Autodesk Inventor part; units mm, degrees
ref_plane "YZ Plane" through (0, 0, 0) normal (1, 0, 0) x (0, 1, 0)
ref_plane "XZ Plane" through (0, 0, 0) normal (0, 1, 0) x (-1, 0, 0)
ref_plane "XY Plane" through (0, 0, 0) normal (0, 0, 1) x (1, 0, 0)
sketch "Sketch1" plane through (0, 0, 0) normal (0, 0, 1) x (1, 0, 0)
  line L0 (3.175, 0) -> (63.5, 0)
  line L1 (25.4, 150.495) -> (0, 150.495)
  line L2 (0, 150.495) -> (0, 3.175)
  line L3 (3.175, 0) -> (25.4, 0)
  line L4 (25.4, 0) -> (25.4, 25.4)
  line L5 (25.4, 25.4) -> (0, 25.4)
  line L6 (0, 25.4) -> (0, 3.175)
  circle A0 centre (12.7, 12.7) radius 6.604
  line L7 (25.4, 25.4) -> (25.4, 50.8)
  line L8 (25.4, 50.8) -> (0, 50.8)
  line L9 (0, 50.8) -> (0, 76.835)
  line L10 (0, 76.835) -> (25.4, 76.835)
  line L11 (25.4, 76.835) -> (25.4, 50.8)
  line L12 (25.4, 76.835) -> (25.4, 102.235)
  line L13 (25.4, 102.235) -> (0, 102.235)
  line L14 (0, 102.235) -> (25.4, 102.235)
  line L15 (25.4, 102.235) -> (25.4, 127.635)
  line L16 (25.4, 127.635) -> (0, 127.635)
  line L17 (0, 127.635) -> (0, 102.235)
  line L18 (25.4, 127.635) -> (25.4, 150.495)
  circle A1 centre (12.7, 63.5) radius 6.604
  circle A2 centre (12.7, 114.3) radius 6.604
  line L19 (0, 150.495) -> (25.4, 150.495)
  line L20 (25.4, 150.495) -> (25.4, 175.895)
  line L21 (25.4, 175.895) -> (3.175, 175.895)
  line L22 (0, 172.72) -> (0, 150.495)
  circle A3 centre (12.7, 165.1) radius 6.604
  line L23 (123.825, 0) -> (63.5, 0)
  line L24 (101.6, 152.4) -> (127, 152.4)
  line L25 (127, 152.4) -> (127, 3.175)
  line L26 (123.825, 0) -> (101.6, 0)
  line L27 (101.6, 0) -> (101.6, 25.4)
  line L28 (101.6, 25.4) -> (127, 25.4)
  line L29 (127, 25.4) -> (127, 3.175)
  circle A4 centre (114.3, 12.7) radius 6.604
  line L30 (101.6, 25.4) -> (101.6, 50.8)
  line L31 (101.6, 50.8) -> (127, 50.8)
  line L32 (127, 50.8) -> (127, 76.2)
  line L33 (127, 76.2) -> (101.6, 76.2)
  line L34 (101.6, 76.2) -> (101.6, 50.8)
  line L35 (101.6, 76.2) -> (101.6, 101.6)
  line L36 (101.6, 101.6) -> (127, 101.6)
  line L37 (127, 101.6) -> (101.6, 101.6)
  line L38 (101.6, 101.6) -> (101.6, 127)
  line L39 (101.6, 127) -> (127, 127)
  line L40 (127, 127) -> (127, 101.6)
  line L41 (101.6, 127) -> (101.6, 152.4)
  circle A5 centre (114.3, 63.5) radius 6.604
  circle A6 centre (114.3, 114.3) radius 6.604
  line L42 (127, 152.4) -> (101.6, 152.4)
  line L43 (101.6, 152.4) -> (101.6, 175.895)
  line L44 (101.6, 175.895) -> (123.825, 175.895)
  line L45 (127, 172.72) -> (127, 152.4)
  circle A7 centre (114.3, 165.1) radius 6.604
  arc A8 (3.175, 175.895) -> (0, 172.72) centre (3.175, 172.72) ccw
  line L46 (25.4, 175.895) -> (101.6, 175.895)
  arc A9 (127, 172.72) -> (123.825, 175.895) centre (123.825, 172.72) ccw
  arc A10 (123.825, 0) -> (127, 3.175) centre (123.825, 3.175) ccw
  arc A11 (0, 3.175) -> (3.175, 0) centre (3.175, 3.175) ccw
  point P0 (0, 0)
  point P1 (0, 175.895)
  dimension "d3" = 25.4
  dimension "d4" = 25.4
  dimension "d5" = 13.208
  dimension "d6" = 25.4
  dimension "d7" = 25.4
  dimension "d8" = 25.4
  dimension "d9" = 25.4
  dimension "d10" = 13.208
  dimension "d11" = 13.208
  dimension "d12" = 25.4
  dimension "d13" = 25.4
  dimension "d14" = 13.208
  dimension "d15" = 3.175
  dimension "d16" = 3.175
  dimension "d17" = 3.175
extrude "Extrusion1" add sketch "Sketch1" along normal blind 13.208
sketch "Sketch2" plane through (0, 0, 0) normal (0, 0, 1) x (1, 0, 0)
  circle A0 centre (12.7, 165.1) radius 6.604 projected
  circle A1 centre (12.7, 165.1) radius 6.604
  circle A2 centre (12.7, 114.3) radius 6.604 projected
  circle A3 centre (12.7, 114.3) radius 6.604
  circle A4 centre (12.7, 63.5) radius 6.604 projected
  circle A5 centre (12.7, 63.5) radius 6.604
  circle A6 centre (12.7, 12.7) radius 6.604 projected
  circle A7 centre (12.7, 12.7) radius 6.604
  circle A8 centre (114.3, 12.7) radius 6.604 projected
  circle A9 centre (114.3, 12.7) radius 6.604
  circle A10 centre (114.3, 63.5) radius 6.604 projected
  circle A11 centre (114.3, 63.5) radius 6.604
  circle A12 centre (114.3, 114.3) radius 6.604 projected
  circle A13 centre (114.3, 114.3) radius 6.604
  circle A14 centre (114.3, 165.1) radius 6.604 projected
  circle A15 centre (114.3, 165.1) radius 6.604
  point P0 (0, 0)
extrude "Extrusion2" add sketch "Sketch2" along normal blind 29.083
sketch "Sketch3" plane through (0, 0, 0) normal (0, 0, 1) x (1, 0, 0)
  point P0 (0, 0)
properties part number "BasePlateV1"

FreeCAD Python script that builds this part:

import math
import FreeCAD as App
import Part
import Sketcher

V = App.Vector
Q = App.Units.Quantity

doc = App.newDocument("Part")
body = doc.addObject("PartDesign::Body", "Body")

sketch1 = body.newObject("Sketcher::SketchObject", "Sketch")
sketch1.AttachmentSupport = (doc.getObject("XY_Plane"), [""])
sketch1.MapMode = "FlatFace"
sketch1.addGeometry([
    Part.ArcOfCircle(Part.Circle(V(3.2, 3.2, 0), V(0, 0, 1), 3.2), math.radians(180), math.radians(270)),
    Part.LineSegment(V(3.2, 0, 0), V(123.8, 0, 0)),
    Part.ArcOfCircle(Part.Circle(V(123.8, 3.2, 0), V(0, 0, 1), 3.2), math.radians(-90), math.radians(0)),
    Part.LineSegment(V(127, 3.2, 0), V(127, 172.7, 0)),
    Part.ArcOfCircle(Part.Circle(V(123.8, 172.7, 0), V(0, 0, 1), 3.2), math.radians(0), math.radians(90)),
    Part.LineSegment(V(123.8, 175.9, 0), V(3.2, 175.9, 0)),
    Part.ArcOfCircle(Part.Circle(V(3.2, 172.7, 0), V(0, 0, 1), 3.2), math.radians(90), math.radians(180)),
    Part.LineSegment(V(0, 172.7, 0), V(0, 3.2, 0)),
    Part.Circle(V(12.7, 12.7, 0), V(0, 0, 1), 6.6),
    Part.Circle(V(12.7, 63.5, 0), V(0, 0, 1), 6.6),
    Part.Circle(V(12.7, 114.3, 0), V(0, 0, 1), 6.6),
    Part.Circle(V(12.7, 165.1, 0), V(0, 0, 1), 6.6),
    Part.Circle(V(114.3, 165.1, 0), V(0, 0, 1), 6.6),
    Part.Circle(V(114.3, 114.3, 0), V(0, 0, 1), 6.6),
    Part.Circle(V(114.3, 63.5, 0), V(0, 0, 1), 6.6),
    Part.Circle(V(114.3, 12.7, 0), V(0, 0, 1), 6.6),
], False)
sketch1.addConstraint([
    Sketcher.Constraint("Tangent", 0, 2, 1, 1),
    Sketcher.Constraint("Tangent", 1, 2, 2, 1),
    Sketcher.Constraint("Tangent", 2, 2, 3, 1),
    Sketcher.Constraint("Tangent", 3, 2, 4, 1),
    Sketcher.Constraint("Tangent", 4, 2, 5, 1),
    Sketcher.Constraint("Tangent", 5, 2, 6, 1),
    Sketcher.Constraint("Tangent", 6, 2, 7, 1),
    Sketcher.Constraint("Tangent", 7, 2, 0, 1),
    Sketcher.Constraint("Horizontal", 1),
    Sketcher.Constraint("Vertical", 3),
    Sketcher.Constraint("Horizontal", 5),
    Sketcher.Constraint("Vertical", 7),
    Sketcher.Constraint("Equal", 0, 2),
    Sketcher.Constraint("Equal", 2, 4),
    Sketcher.Constraint("Equal", 4, 6),
    Sketcher.Constraint("Equal", 8, 9),
    Sketcher.Constraint("Equal", 9, 10),
    Sketcher.Constraint("Equal", 10, 11),
    Sketcher.Constraint("Equal", 11, 12),
    Sketcher.Constraint("Equal", 12, 13),
    Sketcher.Constraint("Equal", 13, 14),
    Sketcher.Constraint("Equal", 14, 15),
    Sketcher.Constraint("PointOnObject", 0, 2, -1),
    Sketcher.Constraint("PointOnObject", 6, 2, -2),
    Sketcher.Constraint("Horizontal", 11, 3, 12, 3),
    Sketcher.Constraint("Horizontal", 10, 3, 13, 3),
    Sketcher.Constraint("Horizontal", 9, 3, 14, 3),
    Sketcher.Constraint("Horizontal", 8, 3, 15, 3),
    Sketcher.Constraint("Vertical", 8, 3, 9, 3),
    Sketcher.Constraint("Vertical", 9, 3, 10, 3),
    Sketcher.Constraint("Vertical", 10, 3, 11, 3),
    Sketcher.Constraint("Vertical", 12, 3, 13, 3),
    Sketcher.Constraint("Vertical", 13, 3, 14, 3),
    Sketcher.Constraint("Vertical", 14, 3, 15, 3),
    Sketcher.Constraint("Diameter", 8, Q("0.52 in")),
    Sketcher.Constraint("Radius", 0, Q("0.125 in")),
    Sketcher.Constraint("DistanceX", -1, 1, 2, 2, Q("5 in")),
    Sketcher.Constraint("DistanceY", 8, 3, 9, 3, Q("2 in")),
    Sketcher.Constraint("DistanceY", 9, 3, 10, 3, Q("2 in")),
    Sketcher.Constraint("DistanceY", 10, 3, 11, 3, Q("2 in")),
    Sketcher.Constraint("DistanceX", 11, 3, 12, 3, Q("4 in")),
    Sketcher.Constraint("DistanceY", -1, 1, 4, 3, Q("6.8 in")),
    Sketcher.Constraint("DistanceX", -1, 1, 8, 3, Q("0.5 in")),
    Sketcher.Constraint("DistanceY", -1, 1, 8, 3, Q("0.5 in")),
])
pad1 = body.newObject("PartDesign::Pad", "Pad")
pad1.Profile = sketch1
pad1.Length = Q("0.52 in")

sketch2 = body.newObject("Sketcher::SketchObject", "Sketch001")
sketch2.AttachmentSupport = (doc.getObject("XY_Plane"), [""])
sketch2.MapMode = "FlatFace"
sketch2.addGeometry([
    Part.Circle(V(13, 165, 0), V(0, 0, 1), 7),
    Part.Circle(V(13, 114, 0), V(0, 0, 1), 7),
    Part.Circle(V(13, 64, 0), V(0, 0, 1), 7),
    Part.Circle(V(13, 13, 0), V(0, 0, 1), 7),
    Part.Circle(V(114, 13, 0), V(0, 0, 1), 7),
    Part.Circle(V(114, 64, 0), V(0, 0, 1), 7),
    Part.Circle(V(114, 114, 0), V(0, 0, 1), 7),
    Part.Circle(V(114, 165, 0), V(0, 0, 1), 7),
], False)
sketch2.addConstraint([
    Sketcher.Constraint("Equal", 0, 1),
    Sketcher.Constraint("Equal", 1, 2),
    Sketcher.Constraint("Equal", 2, 3),
    Sketcher.Constraint("Equal", 3, 4),
    Sketcher.Constraint("Equal", 4, 5),
    Sketcher.Constraint("Equal", 5, 6),
    Sketcher.Constraint("Equal", 6, 7),
    Sketcher.Constraint("Horizontal", 3, 3, 4, 3),
    Sketcher.Constraint("Horizontal", 2, 3, 5, 3),
    Sketcher.Constraint("Horizontal", 1, 3, 6, 3),
    Sketcher.Constraint("Horizontal", 0, 3, 7, 3),
    Sketcher.Constraint("Vertical", 0, 3, 1, 3),
    Sketcher.Constraint("Vertical", 1, 3, 2, 3),
    Sketcher.Constraint("Vertical", 2, 3, 3, 3),
    Sketcher.Constraint("Vertical", 4, 3, 5, 3),
    Sketcher.Constraint("Vertical", 5, 3, 6, 3),
    Sketcher.Constraint("Vertical", 6, 3, 7, 3),
    Sketcher.Constraint("Diameter", 0, Q("0.52 in")),
    Sketcher.Constraint("DistanceY", 1, 3, 0, 3, Q("2 in")),
    Sketcher.Constraint("DistanceY", 2, 3, 1, 3, Q("2 in")),
    Sketcher.Constraint("DistanceY", 3, 3, 2, 3, Q("2 in")),
    Sketcher.Constraint("DistanceX", 3, 3, 4, 3, Q("4 in")),
    Sketcher.Constraint("DistanceX", -1, 1, 0, 3, Q("0.5 in")),
    Sketcher.Constraint("DistanceY", -1, 1, 0, 3, Q("6.5 in")),
])
pad2 = body.newObject("PartDesign::Pad", "Pad001")
pad2.Profile = sketch2
pad2.Length = Q("1.145 in")

doc.recompute()
